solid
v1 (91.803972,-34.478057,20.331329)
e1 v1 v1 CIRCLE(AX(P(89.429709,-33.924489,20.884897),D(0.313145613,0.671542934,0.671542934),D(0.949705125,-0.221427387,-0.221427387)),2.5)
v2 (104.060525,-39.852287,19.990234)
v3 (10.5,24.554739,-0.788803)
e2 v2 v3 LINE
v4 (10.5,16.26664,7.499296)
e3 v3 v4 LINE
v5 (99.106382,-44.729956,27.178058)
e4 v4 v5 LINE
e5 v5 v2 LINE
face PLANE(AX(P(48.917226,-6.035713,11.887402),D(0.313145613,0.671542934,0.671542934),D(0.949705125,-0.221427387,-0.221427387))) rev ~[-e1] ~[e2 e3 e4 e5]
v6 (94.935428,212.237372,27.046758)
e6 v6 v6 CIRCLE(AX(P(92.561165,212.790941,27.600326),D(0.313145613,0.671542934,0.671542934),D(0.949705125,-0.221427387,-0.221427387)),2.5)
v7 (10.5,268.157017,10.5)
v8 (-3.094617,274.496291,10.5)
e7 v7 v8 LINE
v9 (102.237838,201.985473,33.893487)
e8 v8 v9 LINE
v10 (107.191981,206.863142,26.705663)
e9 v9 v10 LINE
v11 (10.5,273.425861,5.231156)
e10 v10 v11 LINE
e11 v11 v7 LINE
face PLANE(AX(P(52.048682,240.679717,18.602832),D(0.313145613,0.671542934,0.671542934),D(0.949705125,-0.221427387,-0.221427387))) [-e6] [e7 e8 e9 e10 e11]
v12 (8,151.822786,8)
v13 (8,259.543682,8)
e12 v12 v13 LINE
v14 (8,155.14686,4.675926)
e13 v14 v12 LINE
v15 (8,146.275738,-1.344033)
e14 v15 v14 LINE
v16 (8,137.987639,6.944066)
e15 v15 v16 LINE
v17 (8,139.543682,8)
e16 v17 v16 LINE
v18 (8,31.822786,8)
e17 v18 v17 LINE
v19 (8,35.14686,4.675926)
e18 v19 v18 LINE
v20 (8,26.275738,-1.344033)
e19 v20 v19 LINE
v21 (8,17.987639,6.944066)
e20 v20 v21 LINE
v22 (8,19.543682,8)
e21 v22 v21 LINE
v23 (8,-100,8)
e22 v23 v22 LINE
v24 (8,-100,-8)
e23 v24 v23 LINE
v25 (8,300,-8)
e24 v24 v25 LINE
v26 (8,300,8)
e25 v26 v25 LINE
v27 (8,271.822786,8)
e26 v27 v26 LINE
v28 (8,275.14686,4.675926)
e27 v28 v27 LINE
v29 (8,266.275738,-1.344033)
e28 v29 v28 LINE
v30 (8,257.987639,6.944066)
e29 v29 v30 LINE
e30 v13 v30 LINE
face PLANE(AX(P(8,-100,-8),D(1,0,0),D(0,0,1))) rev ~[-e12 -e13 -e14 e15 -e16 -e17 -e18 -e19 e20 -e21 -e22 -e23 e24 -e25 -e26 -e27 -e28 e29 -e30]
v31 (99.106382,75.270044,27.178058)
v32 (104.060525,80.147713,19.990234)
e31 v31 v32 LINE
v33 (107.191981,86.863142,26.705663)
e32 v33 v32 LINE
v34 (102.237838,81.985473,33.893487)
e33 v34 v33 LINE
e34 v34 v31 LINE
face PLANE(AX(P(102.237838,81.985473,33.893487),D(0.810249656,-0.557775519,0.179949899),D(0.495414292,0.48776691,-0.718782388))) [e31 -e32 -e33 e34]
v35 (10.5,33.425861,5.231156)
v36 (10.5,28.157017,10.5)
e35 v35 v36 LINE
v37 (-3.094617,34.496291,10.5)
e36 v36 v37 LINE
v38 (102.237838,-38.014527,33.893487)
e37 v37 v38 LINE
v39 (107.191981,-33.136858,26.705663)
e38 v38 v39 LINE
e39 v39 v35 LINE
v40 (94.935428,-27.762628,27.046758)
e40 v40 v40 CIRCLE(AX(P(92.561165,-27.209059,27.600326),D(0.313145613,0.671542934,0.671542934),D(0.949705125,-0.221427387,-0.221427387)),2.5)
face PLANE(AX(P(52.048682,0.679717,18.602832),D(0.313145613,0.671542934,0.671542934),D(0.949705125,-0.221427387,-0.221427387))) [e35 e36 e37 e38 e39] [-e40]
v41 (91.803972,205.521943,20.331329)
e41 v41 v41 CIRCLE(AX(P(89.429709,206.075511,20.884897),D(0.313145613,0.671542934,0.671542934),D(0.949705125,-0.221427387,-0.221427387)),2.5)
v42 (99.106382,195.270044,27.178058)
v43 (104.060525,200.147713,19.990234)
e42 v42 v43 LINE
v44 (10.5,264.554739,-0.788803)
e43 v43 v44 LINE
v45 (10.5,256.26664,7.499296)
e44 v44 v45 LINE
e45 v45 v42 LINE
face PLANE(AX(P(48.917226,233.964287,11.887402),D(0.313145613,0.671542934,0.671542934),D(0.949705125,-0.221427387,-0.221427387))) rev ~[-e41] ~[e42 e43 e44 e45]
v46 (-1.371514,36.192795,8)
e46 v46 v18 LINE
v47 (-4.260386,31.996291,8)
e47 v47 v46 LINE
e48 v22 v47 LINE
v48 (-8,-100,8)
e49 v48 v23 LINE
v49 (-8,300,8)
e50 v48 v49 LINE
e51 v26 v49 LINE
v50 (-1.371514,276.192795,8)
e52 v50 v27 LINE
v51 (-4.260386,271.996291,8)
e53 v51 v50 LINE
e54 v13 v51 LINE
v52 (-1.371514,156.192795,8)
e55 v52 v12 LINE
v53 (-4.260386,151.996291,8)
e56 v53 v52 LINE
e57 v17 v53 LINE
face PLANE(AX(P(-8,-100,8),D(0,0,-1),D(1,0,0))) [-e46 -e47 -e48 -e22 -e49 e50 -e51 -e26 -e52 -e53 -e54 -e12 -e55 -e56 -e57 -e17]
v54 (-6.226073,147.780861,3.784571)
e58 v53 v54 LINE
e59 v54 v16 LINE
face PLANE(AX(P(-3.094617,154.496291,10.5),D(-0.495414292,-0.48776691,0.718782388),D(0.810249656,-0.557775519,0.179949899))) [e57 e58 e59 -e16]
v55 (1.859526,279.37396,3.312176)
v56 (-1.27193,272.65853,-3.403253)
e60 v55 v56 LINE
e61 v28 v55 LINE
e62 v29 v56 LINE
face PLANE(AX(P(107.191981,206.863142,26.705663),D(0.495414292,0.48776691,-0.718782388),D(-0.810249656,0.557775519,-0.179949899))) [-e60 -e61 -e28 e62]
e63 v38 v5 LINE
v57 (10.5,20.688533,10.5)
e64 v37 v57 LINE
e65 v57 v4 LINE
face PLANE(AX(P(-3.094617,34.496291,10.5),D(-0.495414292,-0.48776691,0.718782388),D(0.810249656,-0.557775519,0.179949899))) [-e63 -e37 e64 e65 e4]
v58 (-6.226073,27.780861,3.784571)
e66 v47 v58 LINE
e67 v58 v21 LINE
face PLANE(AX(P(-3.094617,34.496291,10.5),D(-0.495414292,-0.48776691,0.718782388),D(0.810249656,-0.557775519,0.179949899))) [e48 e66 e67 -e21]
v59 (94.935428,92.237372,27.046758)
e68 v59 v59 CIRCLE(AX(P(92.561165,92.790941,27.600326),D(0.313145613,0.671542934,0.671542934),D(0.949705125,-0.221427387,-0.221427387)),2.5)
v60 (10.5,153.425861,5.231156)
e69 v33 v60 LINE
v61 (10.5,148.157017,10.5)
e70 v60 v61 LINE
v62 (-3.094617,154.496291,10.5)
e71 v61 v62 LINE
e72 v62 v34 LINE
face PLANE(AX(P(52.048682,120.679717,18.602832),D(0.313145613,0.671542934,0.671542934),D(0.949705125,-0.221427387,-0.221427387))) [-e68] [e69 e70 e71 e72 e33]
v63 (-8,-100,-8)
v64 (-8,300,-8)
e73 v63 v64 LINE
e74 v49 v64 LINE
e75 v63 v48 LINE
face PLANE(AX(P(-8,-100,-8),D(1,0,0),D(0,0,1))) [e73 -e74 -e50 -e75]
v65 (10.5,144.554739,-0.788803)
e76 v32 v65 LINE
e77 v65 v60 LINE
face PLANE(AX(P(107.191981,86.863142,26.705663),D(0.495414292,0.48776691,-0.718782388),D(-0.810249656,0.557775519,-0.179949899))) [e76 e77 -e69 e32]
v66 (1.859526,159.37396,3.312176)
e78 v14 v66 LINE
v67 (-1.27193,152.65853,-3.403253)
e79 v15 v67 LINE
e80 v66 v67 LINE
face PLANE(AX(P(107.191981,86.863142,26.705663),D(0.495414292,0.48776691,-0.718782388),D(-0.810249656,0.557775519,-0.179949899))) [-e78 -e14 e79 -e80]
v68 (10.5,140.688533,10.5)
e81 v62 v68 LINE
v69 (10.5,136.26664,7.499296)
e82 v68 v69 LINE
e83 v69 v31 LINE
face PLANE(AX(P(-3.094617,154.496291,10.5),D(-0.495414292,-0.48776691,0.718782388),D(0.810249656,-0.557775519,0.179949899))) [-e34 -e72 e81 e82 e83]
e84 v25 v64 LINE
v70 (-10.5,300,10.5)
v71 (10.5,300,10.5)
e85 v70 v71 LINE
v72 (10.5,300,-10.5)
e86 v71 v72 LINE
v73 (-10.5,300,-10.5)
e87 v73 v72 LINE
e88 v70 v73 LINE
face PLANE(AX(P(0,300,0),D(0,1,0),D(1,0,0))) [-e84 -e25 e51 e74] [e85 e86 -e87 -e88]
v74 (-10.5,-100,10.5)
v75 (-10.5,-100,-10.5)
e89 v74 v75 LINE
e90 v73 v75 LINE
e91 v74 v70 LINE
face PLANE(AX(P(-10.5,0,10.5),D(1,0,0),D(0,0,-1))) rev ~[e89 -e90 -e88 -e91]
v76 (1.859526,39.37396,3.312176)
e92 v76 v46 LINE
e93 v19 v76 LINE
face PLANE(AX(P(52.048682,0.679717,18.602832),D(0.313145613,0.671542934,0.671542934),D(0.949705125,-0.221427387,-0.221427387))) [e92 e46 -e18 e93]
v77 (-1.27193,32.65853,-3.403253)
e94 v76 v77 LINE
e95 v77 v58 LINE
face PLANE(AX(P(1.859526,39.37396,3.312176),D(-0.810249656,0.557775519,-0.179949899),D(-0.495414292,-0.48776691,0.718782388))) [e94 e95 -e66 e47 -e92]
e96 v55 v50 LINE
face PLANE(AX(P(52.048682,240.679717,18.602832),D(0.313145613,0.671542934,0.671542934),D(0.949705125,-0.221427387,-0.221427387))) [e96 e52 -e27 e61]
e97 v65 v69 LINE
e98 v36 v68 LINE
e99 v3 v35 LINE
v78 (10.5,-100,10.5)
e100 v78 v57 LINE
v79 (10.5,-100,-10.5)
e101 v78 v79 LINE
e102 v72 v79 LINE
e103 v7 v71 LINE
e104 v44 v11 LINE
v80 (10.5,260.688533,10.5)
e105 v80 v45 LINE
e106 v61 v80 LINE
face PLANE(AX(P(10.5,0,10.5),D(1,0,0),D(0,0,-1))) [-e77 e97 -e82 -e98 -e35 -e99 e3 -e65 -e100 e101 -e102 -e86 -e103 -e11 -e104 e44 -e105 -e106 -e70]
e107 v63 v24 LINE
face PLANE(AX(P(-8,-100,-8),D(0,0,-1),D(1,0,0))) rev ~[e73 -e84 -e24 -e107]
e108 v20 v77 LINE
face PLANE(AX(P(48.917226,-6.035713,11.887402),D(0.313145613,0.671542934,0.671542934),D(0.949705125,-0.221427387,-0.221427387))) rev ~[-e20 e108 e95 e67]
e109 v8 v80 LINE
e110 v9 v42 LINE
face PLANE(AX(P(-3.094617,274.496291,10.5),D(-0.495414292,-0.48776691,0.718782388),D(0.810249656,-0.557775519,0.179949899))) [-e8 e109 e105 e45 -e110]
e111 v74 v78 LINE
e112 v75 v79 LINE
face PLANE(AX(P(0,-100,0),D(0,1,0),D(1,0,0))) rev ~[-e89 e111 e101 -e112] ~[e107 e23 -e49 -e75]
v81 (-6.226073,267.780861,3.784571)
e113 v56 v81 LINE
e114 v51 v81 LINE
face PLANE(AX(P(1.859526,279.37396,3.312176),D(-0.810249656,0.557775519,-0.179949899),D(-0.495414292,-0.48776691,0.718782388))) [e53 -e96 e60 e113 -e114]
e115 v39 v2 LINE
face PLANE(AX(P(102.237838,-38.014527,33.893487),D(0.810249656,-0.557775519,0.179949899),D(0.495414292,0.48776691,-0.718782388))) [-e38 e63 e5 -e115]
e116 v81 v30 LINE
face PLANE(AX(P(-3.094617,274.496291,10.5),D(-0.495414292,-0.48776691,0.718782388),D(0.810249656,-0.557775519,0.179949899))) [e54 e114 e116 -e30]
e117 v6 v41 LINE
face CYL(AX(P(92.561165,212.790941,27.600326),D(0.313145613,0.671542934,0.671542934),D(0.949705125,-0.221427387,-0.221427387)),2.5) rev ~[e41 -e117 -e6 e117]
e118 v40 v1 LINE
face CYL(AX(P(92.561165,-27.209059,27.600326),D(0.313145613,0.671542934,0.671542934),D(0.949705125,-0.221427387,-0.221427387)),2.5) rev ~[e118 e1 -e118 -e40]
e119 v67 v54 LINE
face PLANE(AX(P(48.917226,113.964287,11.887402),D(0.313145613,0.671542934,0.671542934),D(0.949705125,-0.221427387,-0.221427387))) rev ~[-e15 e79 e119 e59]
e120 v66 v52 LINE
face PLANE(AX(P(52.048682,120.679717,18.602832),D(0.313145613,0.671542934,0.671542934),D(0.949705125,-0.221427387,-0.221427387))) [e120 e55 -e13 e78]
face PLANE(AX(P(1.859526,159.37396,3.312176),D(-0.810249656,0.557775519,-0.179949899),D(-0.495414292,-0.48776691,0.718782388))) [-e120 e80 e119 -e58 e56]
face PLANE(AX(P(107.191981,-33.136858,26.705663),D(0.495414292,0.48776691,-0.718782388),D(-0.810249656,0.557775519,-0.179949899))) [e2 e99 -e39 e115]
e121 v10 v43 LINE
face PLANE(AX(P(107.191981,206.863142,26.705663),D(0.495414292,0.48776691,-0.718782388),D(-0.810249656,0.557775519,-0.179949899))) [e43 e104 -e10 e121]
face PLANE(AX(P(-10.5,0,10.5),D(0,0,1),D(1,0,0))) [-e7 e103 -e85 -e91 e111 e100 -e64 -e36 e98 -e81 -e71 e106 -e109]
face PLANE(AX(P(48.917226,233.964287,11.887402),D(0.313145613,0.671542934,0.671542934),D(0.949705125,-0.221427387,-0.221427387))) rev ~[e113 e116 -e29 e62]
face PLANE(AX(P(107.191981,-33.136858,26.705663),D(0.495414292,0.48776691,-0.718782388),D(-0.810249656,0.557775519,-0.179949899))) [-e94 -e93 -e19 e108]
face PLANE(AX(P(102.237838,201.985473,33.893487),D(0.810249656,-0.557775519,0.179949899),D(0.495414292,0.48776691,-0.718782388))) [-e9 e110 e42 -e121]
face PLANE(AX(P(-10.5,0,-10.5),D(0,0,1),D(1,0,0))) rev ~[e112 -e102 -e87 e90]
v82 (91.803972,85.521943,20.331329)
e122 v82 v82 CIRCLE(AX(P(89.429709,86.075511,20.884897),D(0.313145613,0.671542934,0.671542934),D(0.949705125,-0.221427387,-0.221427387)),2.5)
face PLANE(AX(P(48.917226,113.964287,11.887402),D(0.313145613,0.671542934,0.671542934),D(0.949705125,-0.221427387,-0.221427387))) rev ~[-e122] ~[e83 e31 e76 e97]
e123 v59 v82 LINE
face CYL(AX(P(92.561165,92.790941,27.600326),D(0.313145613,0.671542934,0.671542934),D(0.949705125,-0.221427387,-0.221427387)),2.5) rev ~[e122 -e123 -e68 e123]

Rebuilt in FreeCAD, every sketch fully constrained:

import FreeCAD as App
import Part
import Sketcher
from FreeCAD import Vector
Q = App.Units.Quantity

doc = App.newDocument("Part")
body = doc.addObject("PartDesign::Body", "Body")

sketch1 = doc.addObject("Sketcher::SketchObject", "Sketch")
body.addObject(sketch1)
sketch1.AttachmentSupport = (doc.XZ_Plane, [""])
sketch1.MapMode = "FlatFace"
sketch1.addGeometry(Part.LineSegment(Vector(-10.5, -10.5, 0), Vector(-10.5, 10.5, 0)), False)
sketch1.addGeometry(Part.LineSegment(Vector(-10.5, 10.5, 0), Vector(10.5, 10.5, 0)), False)
sketch1.addGeometry(Part.LineSegment(Vector(10.5, 10.5, 0), Vector(10.5, -10.5, 0)), False)
sketch1.addGeometry(Part.LineSegment(Vector(10.5, -10.5, 0), Vector(-10.5, -10.5, 0)), False)
sketch1.addConstraint(Sketcher.Constraint("Coincident", 0, 2, 1, 1))
sketch1.addConstraint(Sketcher.Constraint("Coincident", 1, 2, 2, 1))
sketch1.addConstraint(Sketcher.Constraint("Coincident", 2, 2, 3, 1))
sketch1.addConstraint(Sketcher.Constraint("Coincident", 3, 2, 0, 1))
sketch1.addConstraint(Sketcher.Constraint("Vertical", 0))
sketch1.addConstraint(Sketcher.Constraint("Horizontal", 1))
sketch1.addConstraint(Sketcher.Constraint("Vertical", 2))
sketch1.addConstraint(Sketcher.Constraint("Horizontal", 3))
sketch1.addConstraint(Sketcher.Constraint("Symmetric", 0, 2, 2, 2, -1, 1))
sketch1.addConstraint(Sketcher.Constraint("Equal", 3, 0))
sketch1.addConstraint(Sketcher.Constraint("DistanceX", 1, 1, 1, 2, Q("21 mm")))
pad1 = doc.addObject("PartDesign::Pad", "Pad")
body.addObject(pad1)
pad1.Profile = sketch1
pad1.Type = "TwoLengths"
pad1.Length = 300
pad1.Length2 = 100
pad1.Reversed = True

sketch2 = doc.addObject("Sketcher::SketchObject", "Sketch001")
body.addObject(sketch2)
sketch2.AttachmentSupport = (doc.XZ_Plane, [""])
sketch2.MapMode = "FlatFace"
sketch2.AttachmentOffset = App.Placement(Vector(0, 0, 100), App.Rotation())
sketch2.addGeometry(Part.LineSegment(Vector(-8, 8, 0), Vector(-8, -8, 0)), False)
sketch2.addGeometry(Part.LineSegment(Vector(-8, -8, 0), Vector(8, -8, 0)), False)
sketch2.addGeometry(Part.LineSegment(Vector(8, -8, 0), Vector(8, 8, 0)), False)
sketch2.addGeometry(Part.LineSegment(Vector(8, 8, 0), Vector(-8, 8, 0)), False)
sketch2.addConstraint(Sketcher.Constraint("Coincident", 0, 2, 1, 1))
sketch2.addConstraint(Sketcher.Constraint("Coincident", 1, 2, 2, 1))
sketch2.addConstraint(Sketcher.Constraint("Coincident", 2, 2, 3, 1))
sketch2.addConstraint(Sketcher.Constraint("Coincident", 3, 2, 0, 1))
sketch2.addConstraint(Sketcher.Constraint("Vertical", 0))
sketch2.addConstraint(Sketcher.Constraint("Horizontal", 1))
sketch2.addConstraint(Sketcher.Constraint("Vertical", 2))
sketch2.addConstraint(Sketcher.Constraint("Horizontal", 3))
sketch2.addConstraint(Sketcher.Constraint("Symmetric", 0, 2, 2, 2, -1, 1))
sketch2.addConstraint(Sketcher.Constraint("Equal", 3, 0))
sketch2.addConstraint(Sketcher.Constraint("DistanceX", 1, 1, 1, 2, Q("16 mm")))
pocket1 = doc.addObject("PartDesign::Pocket", "Pocket")
body.addObject(pocket1)
pocket1.Profile = sketch2
pocket1.Length = 800

sketch3 = doc.addObject("Sketcher::SketchObject", "Sketch002")
body.addObject(sketch3)
sketch3.Placement = App.Placement(Vector(9.158844, 19.641204, 19.641204), App.Rotation(Vector(0.949705125, -0.221427387, -0.221427387), Vector(0, 0.707106781, -0.707106781), Vector(0.313145613, 0.671542934, 0.671542934), "ZXY"))
sketch3.addGeometry(Part.LineSegment(Vector(-12.902384, 16.96794, 0), Vector(98.00831, -50.846644, 0)), False)
sketch3.addGeometry(Part.LineSegment(Vector(98.00831, -50.846644, 0), Vector(103.224817, -42.315052, 0)), False)
sketch3.addGeometry(Part.LineSegment(Vector(103.224817, -42.315052, 0), Vector(-7.685878, 25.499532, 0)), False)
sketch3.addGeometry(Part.LineSegment(Vector(-7.685878, 25.499532, 0), Vector(-12.902384, 16.96794, 0)), False)
sketch3.addGeometry(Part.Circle(Vector(87.819176, -38.756088, 0), Vector(0, 0, 1), 2.5), False)
sketch3.addConstraint(Sketcher.Constraint("Coincident", 0, 2, 1, 1))
sketch3.addConstraint(Sketcher.Constraint("Coincident", 1, 2, 2, 1))
sketch3.addConstraint(Sketcher.Constraint("Coincident", 2, 2, 3, 1))
sketch3.addConstraint(Sketcher.Constraint("Coincident", 3, 2, 0, 1))
sketch3.addConstraint(Sketcher.Constraint("Perpendicular", 0, 1))
sketch3.addConstraint(Sketcher.Constraint("Perpendicular", 1, 2))
sketch3.addConstraint(Sketcher.Constraint("Perpendicular", 2, 3))
sketch3.addConstraint(Sketcher.Constraint("Diameter", 4, Q("5 mm")))
sketch3.addConstraint(Sketcher.Constraint("Distance", 0, Q("130 mm")))
sketch3.addConstraint(Sketcher.Constraint("Distance", 1, Q("10 mm")))
sketch3.addConstraint(Sketcher.Constraint("DistanceX", 3, 2, 1, 2, Q("116.127201 mm")))
sketch3.addConstraint(Sketcher.Constraint("DistanceY", 4, 3, -1, 1, Q("38.756088 mm")))
sketch3.addConstraint(Sketcher.Constraint("DistanceX", -1, 1, 0, 2, Q("98.00831 mm")))
sketch3.addConstraint(Sketcher.Constraint("DistanceY", -1, 1, 2, 2, Q("25.499532 mm")))
sketch3.addConstraint(Sketcher.Constraint("DistanceX", 4, 3, 1, 2, Q("15.405641 mm")))
pad2 = doc.addObject("PartDesign::Pad", "Pad001")
body.addObject(pad2)
pad2.Profile = sketch3
pad2.Length = 10
pad2.Reversed = True
doc.recompute()

linearpattern = doc.addObject("PartDesign::LinearPattern", "LinearPattern")
body.addObject(linearpattern)
linearpattern.Originals = [pad2]
linearpattern.Direction = (doc.Y_Axis, [""])
linearpattern.Mode = "offset"
linearpattern.Offset = 120
linearpattern.Occurrences = 3
body.Tip = linearpattern

doc.recompute()
